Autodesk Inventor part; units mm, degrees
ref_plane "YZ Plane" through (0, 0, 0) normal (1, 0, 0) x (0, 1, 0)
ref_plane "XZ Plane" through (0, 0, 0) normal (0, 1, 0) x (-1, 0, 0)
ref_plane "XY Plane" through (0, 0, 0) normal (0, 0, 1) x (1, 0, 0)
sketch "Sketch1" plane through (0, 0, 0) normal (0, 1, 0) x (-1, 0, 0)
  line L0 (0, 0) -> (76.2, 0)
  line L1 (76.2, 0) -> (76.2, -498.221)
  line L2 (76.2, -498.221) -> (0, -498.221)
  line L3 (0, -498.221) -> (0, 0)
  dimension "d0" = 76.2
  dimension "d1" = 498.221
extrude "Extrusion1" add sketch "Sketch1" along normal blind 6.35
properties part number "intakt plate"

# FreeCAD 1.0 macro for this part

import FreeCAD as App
import Part
import Sketcher
Q = App.Units.Quantity

doc = App.newDocument("Part")
body = doc.addObject("PartDesign::Body", "Body")

# Sketch on XZ plane
sketch1 = body.newObject("Sketcher::SketchObject", "Sketch")
sketch1.AttachmentSupport = (doc.getObject("XZ_Plane"), [""])
sketch1.MapMode = "FlatFace"
sketch1.addGeometry([
    Part.LineSegment(App.Vector(-76, 0, 0), App.Vector(0, 0, 0)),
    Part.LineSegment(App.Vector(0, 0, 0), App.Vector(0, -498, 0)),
    Part.LineSegment(App.Vector(0, -498, 0), App.Vector(-76, -498, 0)),
    Part.LineSegment(App.Vector(-76, -498, 0), App.Vector(-76, 0, 0)),
], False)
sketch1.addConstraint([
    Sketcher.Constraint("Coincident", 0, 2, 1, 1),
    Sketcher.Constraint("Coincident", 1, 2, 2, 1),
    Sketcher.Constraint("Coincident", 2, 2, 3, 1),
    Sketcher.Constraint("Coincident", 3, 2, 0, 1),
    Sketcher.Constraint("Horizontal", 0),
    Sketcher.Constraint("Vertical", 1),
    Sketcher.Constraint("Horizontal", 2),
    Sketcher.Constraint("Vertical", 3),
    Sketcher.Constraint("Coincident", 0, 2, -1, 1),
    Sketcher.Constraint("DistanceX", 0, 1, 0, 2, Q("3 in")),
    Sketcher.Constraint("DistanceY", 1, 2, 1, 1, Q("19.615 in")),
])
pad1 = body.newObject("PartDesign::Pad", "Pad")
pad1.Profile = sketch1
pad1.Length = Q("0.25 in")
pad1.Reversed = True

doc.recompute()
